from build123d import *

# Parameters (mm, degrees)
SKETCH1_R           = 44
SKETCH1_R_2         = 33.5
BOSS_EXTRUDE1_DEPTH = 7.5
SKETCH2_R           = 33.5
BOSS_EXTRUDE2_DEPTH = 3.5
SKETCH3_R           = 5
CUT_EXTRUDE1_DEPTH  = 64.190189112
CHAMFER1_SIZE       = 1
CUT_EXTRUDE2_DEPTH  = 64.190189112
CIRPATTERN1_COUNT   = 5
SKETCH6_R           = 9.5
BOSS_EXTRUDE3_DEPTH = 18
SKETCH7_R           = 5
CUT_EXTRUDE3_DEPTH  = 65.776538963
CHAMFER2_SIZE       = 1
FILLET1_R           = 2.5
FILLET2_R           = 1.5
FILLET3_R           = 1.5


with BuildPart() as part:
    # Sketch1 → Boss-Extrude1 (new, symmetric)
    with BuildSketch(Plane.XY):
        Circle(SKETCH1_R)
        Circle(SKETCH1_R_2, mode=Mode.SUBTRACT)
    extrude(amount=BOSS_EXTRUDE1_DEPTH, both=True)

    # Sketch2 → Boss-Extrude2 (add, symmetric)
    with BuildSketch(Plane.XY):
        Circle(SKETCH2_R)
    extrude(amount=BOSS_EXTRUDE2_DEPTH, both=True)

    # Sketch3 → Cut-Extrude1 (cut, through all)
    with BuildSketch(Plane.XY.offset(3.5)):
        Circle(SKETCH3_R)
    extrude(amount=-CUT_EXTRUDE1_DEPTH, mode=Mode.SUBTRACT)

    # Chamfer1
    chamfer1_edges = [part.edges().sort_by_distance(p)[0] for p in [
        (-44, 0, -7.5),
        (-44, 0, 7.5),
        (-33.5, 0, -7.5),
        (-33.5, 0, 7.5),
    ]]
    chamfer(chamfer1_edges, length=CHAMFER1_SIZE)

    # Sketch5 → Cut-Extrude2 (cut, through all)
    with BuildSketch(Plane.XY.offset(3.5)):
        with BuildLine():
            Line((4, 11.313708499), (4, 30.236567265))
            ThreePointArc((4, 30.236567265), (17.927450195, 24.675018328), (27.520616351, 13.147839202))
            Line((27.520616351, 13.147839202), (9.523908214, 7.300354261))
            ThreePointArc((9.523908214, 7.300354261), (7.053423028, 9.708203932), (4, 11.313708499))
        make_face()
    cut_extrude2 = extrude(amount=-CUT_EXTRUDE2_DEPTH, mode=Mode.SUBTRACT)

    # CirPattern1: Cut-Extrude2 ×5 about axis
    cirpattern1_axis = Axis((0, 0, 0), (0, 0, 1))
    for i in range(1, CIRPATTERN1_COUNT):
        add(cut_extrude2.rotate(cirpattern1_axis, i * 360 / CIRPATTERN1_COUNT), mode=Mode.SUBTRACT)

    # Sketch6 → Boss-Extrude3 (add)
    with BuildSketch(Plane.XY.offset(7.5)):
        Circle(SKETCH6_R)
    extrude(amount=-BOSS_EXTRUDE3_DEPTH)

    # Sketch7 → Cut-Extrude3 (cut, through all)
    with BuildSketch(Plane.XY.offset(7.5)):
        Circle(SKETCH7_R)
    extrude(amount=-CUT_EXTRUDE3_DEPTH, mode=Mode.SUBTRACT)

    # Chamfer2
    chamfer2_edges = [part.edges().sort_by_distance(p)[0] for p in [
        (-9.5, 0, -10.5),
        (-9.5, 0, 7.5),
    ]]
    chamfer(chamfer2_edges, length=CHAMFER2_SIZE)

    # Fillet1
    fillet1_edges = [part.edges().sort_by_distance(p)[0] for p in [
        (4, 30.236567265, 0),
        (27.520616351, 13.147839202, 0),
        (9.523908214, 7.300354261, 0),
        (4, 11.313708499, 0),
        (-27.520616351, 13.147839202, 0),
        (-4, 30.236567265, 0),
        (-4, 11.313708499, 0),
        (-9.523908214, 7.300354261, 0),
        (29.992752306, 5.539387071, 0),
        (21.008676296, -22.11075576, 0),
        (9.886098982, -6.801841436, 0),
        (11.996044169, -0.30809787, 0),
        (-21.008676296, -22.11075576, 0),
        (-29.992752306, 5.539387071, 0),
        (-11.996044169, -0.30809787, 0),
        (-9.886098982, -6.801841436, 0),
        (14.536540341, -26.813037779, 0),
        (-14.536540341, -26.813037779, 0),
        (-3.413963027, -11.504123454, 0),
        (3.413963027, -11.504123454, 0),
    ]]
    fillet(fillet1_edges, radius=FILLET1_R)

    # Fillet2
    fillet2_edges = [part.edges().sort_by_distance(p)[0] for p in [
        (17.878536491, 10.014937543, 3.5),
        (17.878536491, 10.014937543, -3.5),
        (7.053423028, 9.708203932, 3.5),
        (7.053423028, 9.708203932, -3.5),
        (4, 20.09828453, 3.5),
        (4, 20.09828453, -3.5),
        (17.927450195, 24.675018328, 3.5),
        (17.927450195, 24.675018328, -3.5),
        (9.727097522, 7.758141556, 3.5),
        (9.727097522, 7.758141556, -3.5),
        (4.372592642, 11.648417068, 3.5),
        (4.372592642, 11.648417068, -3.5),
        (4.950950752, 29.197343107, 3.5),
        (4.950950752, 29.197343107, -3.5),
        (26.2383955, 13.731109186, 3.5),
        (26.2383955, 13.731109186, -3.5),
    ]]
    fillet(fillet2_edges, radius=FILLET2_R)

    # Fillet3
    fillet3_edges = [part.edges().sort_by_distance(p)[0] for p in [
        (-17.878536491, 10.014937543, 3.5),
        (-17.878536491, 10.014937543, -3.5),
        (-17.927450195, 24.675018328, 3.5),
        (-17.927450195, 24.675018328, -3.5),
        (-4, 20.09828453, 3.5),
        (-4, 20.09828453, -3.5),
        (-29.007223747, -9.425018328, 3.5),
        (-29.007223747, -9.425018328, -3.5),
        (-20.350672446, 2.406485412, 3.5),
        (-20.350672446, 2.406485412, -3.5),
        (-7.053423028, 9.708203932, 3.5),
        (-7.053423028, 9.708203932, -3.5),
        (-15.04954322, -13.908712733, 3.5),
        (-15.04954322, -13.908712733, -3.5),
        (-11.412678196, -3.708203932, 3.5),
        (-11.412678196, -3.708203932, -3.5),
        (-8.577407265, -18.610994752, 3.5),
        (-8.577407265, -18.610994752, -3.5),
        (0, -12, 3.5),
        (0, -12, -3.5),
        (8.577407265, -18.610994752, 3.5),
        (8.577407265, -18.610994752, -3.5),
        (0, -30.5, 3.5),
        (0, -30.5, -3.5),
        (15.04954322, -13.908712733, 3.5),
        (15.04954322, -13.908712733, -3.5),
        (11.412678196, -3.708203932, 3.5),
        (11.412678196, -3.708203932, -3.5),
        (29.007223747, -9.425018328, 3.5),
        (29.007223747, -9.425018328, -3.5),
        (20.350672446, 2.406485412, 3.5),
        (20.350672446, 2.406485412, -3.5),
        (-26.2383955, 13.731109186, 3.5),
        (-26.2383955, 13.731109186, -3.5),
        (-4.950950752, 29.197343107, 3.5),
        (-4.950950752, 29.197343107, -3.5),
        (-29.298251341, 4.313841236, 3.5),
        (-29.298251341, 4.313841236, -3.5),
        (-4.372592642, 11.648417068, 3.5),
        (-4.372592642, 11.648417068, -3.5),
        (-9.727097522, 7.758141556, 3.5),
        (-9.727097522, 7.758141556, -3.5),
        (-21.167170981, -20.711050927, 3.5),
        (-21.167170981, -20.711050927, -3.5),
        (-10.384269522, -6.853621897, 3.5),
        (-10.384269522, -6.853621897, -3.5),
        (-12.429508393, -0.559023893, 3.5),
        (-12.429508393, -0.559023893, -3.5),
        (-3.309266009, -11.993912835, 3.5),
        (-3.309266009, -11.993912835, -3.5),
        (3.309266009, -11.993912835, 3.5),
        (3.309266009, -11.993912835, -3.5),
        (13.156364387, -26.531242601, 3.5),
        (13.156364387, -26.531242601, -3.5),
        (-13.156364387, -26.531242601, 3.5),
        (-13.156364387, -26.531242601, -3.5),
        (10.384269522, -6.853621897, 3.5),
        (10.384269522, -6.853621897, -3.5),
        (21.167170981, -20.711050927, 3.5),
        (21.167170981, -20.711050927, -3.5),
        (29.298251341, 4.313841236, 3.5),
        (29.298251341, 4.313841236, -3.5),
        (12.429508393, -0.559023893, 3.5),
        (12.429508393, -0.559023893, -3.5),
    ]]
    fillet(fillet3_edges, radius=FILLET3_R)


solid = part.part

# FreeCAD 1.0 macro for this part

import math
import FreeCAD as App
import Part
import Sketcher
Q = App.Units.Quantity


def edges_at(feature, points):
    """Names of the edges that pass closest to the given points."""
    edges = feature.Shape.Edges
    near = lambda p: min(range(len(edges)), key=lambda i: edges[i].distToShape(Part.Vertex(*p))[0])
    return sorted({f"Edge{near(p) + 1}" for p in points})

doc = App.newDocument("Part")
body = doc.addObject("PartDesign::Body", "Body")

# Sketch on XY plane
sketch1 = body.newObject("Sketcher::SketchObject", "Sketch")
sketch1.AttachmentSupport = (doc.getObject("XY_Plane"), [""])
sketch1.MapMode = "FlatFace"
sketch1.addGeometry([
    Part.Circle(App.Vector(0, 0, 0), App.Vector(0, 0, 1), 44),
    Part.Circle(App.Vector(0, 0, 0), App.Vector(0, 0, 1), 34),
], False)
sketch1.addConstraint([
    Sketcher.Constraint("Coincident", 0, 3, -1, 1),
    Sketcher.Constraint("Coincident", 1, 3, -1, 1),
    Sketcher.Constraint("Diameter", 0, 88.0),
    Sketcher.Constraint("Diameter", 1, 67.0),
])
pad1 = body.newObject("PartDesign::Pad", "Pad")
pad1.Profile = sketch1
pad1.Length = 15
pad1.Midplane = True

# Sketch on XY plane
sketch2 = body.newObject("Sketcher::SketchObject", "Sketch001")
sketch2.AttachmentSupport = (doc.getObject("XY_Plane"), [""])
sketch2.MapMode = "FlatFace"
sketch2.addGeometry(Part.Circle(App.Vector(0, 0, 0), App.Vector(0, 0, 1), 34), False)
sketch2.addConstraint([
    Sketcher.Constraint("Coincident", 0, 3, -1, 1),
    Sketcher.Constraint("Diameter", 0, 67.0),
])
pad2 = body.newObject("PartDesign::Pad", "Pad001")
pad2.Profile = sketch2
pad2.Length = 7
pad2.Midplane = True

# Sketch on XY plane
sketch3 = body.newObject("Sketcher::SketchObject", "Sketch002")
sketch3.AttachmentSupport = (doc.getObject("XY_Plane"), [""])
sketch3.MapMode = "FlatFace"
sketch3.AttachmentOffset = App.Placement(App.Vector(0, 0, 3.5), App.Rotation())
sketch3.addGeometry(Part.Circle(App.Vector(0, 0, 0), App.Vector(0, 0, 1), 5), False)
sketch3.addConstraint([
    Sketcher.Constraint("Coincident", 0, 3, -1, 1),
    Sketcher.Constraint("Diameter", 0, 10.0),
])
pocket1 = body.newObject("PartDesign::Pocket", "Pocket")
pocket1.Profile = sketch3
pocket1.Type = "ThroughAll"
doc.recompute()

chamfer = body.newObject("PartDesign::Chamfer", "Chamfer")
chamfer.Base = (pocket1, edges_at(pocket1, [
    (-44, 0, -7.5),
    (-44, 0, 7.5),
    (-33.5, 0, -7.5),
    (-33.5, 0, 7.5),
]))
chamfer.Size = 1

# Sketch on XY plane
sketch4 = body.newObject("Sketcher::SketchObject", "Sketch003")
sketch4.AttachmentSupport = (doc.getObject("XY_Plane"), [""])
sketch4.MapMode = "FlatFace"
sketch4.AttachmentOffset = App.Placement(App.Vector(0, 0, 3.5), App.Rotation())
sketch4.addGeometry([
    Part.LineSegment(App.Vector(4, 30, 0), App.Vector(4, 11, 0)),
    Part.ArcOfCircle(Part.Circle(App.Vector(0, 0, 0), App.Vector(0, 0, 1), 12), math.radians(37), math.radians(71)),
    Part.LineSegment(App.Vector(10, 7, 0), App.Vector(28, 13, 0)),
    Part.ArcOfCircle(Part.Circle(App.Vector(0, 0, 0), App.Vector(0, 0, 1), 31), math.radians(26), math.radians(82)),
], False)
sketch4.addConstraint([
    Sketcher.Constraint("Coincident", 0, 2, 1, 2),
    Sketcher.Constraint("Coincident", 1, 1, 2, 1),
    Sketcher.Constraint("Coincident", 2, 2, 3, 1),
    Sketcher.Constraint("Coincident", 3, 2, 0, 1),
    Sketcher.Constraint("Vertical", 0),
    Sketcher.Constraint("Coincident", 1, 3, -1, 1),
    Sketcher.Constraint("Coincident", 3, 3, -1, 1),
    Sketcher.Constraint("Radius", 1, 12.0),
    Sketcher.Constraint("Radius", 3, 30.5),
    Sketcher.Constraint("Angle", 2, Q("18 deg")),
    Sketcher.Constraint("DistanceX", -1, 1, 0, 2, 4.0),
    Sketcher.Constraint("Distance", 2, 18.922859),
])
pocket2 = body.newObject("PartDesign::Pocket", "Pocket001")
pocket2.Profile = sketch4
pocket2.Type = "ThroughAll"
doc.recompute()

polarpattern = body.newObject("PartDesign::PolarPattern", "PolarPattern")
polarpattern.Originals = [pocket2]
polarpattern.Axis = (doc.getObject("Z_Axis"), [""])
polarpattern.Angle = 360
polarpattern.Occurrences = 5
body.Tip = polarpattern

# Sketch on XY plane
sketch5 = body.newObject("Sketcher::SketchObject", "Sketch004")
sketch5.AttachmentSupport = (doc.getObject("XY_Plane"), [""])
sketch5.MapMode = "FlatFace"
sketch5.AttachmentOffset = App.Placement(App.Vector(0, 0, 7.5), App.Rotation())
sketch5.addGeometry(Part.Circle(App.Vector(0, 0, 0), App.Vector(0, 0, 1), 10), False)
sketch5.addConstraint([
    Sketcher.Constraint("Coincident", 0, 3, -1, 1),
    Sketcher.Constraint("Diameter", 0, 19.0),
])
pad3 = body.newObject("PartDesign::Pad", "Pad002")
pad3.Profile = sketch5
pad3.Length = 18
pad3.Reversed = True

# Sketch on XY plane
sketch6 = body.newObject("Sketcher::SketchObject", "Sketch005")
sketch6.AttachmentSupport = (doc.getObject("XY_Plane"), [""])
sketch6.MapMode = "FlatFace"
sketch6.AttachmentOffset = App.Placement(App.Vector(0, 0, 7.5), App.Rotation())
sketch6.addGeometry(Part.Circle(App.Vector(0, 0, 0), App.Vector(0, 0, 1), 5), False)
sketch6.addConstraint([
    Sketcher.Constraint("Coincident", 0, 3, -1, 1),
    Sketcher.Constraint("Diameter", 0, 10.0),
])
pocket3 = body.newObject("PartDesign::Pocket", "Pocket002")
pocket3.Profile = sketch6
pocket3.Type = "ThroughAll"
doc.recompute()

chamfer2 = body.newObject("PartDesign::Chamfer", "Chamfer001")
chamfer2.Base = (pocket3, edges_at(pocket3, [(-9.5, 0, -10.5), (-9.5, 0, 7.5)]))
chamfer2.Size = 1
doc.recompute()

fillet = body.newObject("PartDesign::Fillet", "Fillet")
fillet.Base = (chamfer2, edges_at(chamfer2, [
    (4, 30.237, 0),
    (27.521, 13.148, 0),
    (9.524, 7.3, 0),
    (4, 11.314, 0),
    (-27.521, 13.148, 0),
    (-4, 30.237, 0),
    (-4, 11.314, 0),
    (-9.524, 7.3, 0),
    (29.993, 5.539, 0),
    (21.009, -22.111, 0),
    (9.886, -6.802, 0),
    (11.996, -0.308, 0),
    (-21.009, -22.111, 0),
    (-29.993, 5.539, 0),
    (-11.996, -0.308, 0),
    (-9.886, -6.802, 0),
    (14.537, -26.813, 0),
    (-14.537, -26.813, 0),
    (-3.414, -11.504, 0),
    (3.414, -11.504, 0),
]))
fillet.Radius = 2.5
doc.recompute()

fillet2 = body.newObject("PartDesign::Fillet", "Fillet001")
fillet2.Base = (fillet, edges_at(fillet, [
    (17.879, 10.015, 3.5),
    (17.879, 10.015, -3.5),
    (7.053, 9.708, 3.5),
    (7.053, 9.708, -3.5),
    (4, 20.098, 3.5),
    (4, 20.098, -3.5),
    (17.927, 24.675, 3.5),
    (17.927, 24.675, -3.5),
    (9.727, 7.758, 3.5),
    (9.727, 7.758, -3.5),
    (4.373, 11.648, 3.5),
    (4.373, 11.648, -3.5),
    (4.951, 29.197, 3.5),
    (4.951, 29.197, -3.5),
    (26.238, 13.731, 3.5),
    (26.238, 13.731, -3.5),
]))
fillet2.Radius = 1.5
doc.recompute()

fillet3 = body.newObject("PartDesign::Fillet", "Fillet002")
fillet3.Base = (fillet2, edges_at(fillet2, [
    (-17.879, 10.015, 3.5),
    (-17.879, 10.015, -3.5),
    (-17.927, 24.675, 3.5),
    (-17.927, 24.675, -3.5),
    (-4, 20.098, 3.5),
    (-4, 20.098, -3.5),
    (-29.007, -9.425, 3.5),
    (-29.007, -9.425, -3.5),
    (-20.351, 2.406, 3.5),
    (-20.351, 2.406, -3.5),
    (-7.053, 9.708, 3.5),
    (-7.053, 9.708, -3.5),
    (-15.05, -13.909, 3.5),
    (-15.05, -13.909, -3.5),
    (-11.413, -3.708, 3.5),
    (-11.413, -3.708, -3.5),
    (-8.577, -18.611, 3.5),
    (-8.577, -18.611, -3.5),
    (0, -12, 3.5),
    (0, -12, -3.5),
    (8.577, -18.611, 3.5),
    (8.577, -18.611, -3.5),
    (0, -30.5, 3.5),
    (0, -30.5, -3.5),
    (15.05, -13.909, 3.5),
    (15.05, -13.909, -3.5),
    (11.413, -3.708, 3.5),
    (11.413, -3.708, -3.5),
    (29.007, -9.425, 3.5),
    (29.007, -9.425, -3.5),
    (20.351, 2.406, 3.5),
    (20.351, 2.406, -3.5),
    (-26.238, 13.731, 3.5),
    (-26.238, 13.731, -3.5),
    (-4.951, 29.197, 3.5),
    (-4.951, 29.197, -3.5),
    (-29.298, 4.314, 3.5),
    (-29.298, 4.314, -3.5),
    (-4.373, 11.648, 3.5),
    (-4.373, 11.648, -3.5),
    (-9.727, 7.758, 3.5),
    (-9.727, 7.758, -3.5),
    (-21.167, -20.711, 3.5),
    (-21.167, -20.711, -3.5),
    (-10.384, -6.854, 3.5),
    (-10.384, -6.854, -3.5),
    (-12.43, -0.559, 3.5),
    (-12.43, -0.559, -3.5),
    (-3.309, -11.994, 3.5),
    (-3.309, -11.994, -3.5),
    (3.309, -11.994, 3.5),
    (3.309, -11.994, -3.5),
    (13.156, -26.531, 3.5),
    (13.156, -26.531, -3.5),
    (-13.156, -26.531, 3.5),
    (-13.156, -26.531, -3.5),
    (10.384, -6.854, 3.5),
    (10.384, -6.854, -3.5),
    (21.167, -20.711, 3.5),
    (21.167, -20.711, -3.5),
    (29.298, 4.314, 3.5),
    (29.298, 4.314, -3.5),
    (12.43, -0.559, 3.5),
    (12.43, -0.559, -3.5),
]))
fillet3.Radius = 1.5

doc.recompute()
